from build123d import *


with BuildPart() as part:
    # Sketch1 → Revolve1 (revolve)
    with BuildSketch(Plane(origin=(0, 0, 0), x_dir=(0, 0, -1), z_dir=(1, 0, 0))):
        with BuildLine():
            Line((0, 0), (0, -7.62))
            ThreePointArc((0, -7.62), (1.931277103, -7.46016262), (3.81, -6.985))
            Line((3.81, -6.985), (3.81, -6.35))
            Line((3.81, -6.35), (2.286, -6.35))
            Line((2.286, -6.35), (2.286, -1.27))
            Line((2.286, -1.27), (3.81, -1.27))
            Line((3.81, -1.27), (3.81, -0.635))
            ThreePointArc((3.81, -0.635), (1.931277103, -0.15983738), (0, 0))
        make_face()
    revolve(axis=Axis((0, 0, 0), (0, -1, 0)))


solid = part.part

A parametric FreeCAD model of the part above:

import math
import FreeCAD as App
import Part
import Sketcher
from FreeCAD import Vector
Q = App.Units.Quantity

doc = App.newDocument("Part")
body = doc.addObject("PartDesign::Body", "Body")

# Sketch on YZ plane
sketch1 = body.newObject("Sketcher::SketchObject", "Sketch")
sketch1.AttachmentSupport = (doc.getObject("YZ_Plane"), [""])
sketch1.MapMode = "FlatFace"
sketch1.addGeometry(Part.LineSegment(Vector(0, 0, 0), Vector(-7.6, 0, 0)), False)
sketch1.addGeometry(Part.ArcOfCircle(Part.Circle(Vector(4.1, 0, 0), Vector(0, 0, 1), 11.7), math.radians(-180), math.radians(-161.08)), False)
sketch1.addGeometry(Part.LineSegment(Vector(-7, -3.8, 0), Vector(-6.3, -3.8, 0)), False)
sketch1.addGeometry(Part.LineSegment(Vector(-6.3, -3.8, 0), Vector(-6.3, -2.3, 0)), False)
sketch1.addGeometry(Part.LineSegment(Vector(-6.3, -2.3, 0), Vector(-1.3, -2.3, 0)), False)
sketch1.addGeometry(Part.LineSegment(Vector(-1.3, -2.3, 0), Vector(-1.3, -3.8, 0)), False)
sketch1.addGeometry(Part.LineSegment(Vector(-1.3, -3.8, 0), Vector(-0.6, -3.8, 0)), False)
sketch1.addGeometry(Part.ArcOfCircle(Part.Circle(Vector(-11.7, 0, 0), Vector(0, 0, 1), 11.7), math.radians(-18.92), math.radians(0)), False)
sketch1.addConstraint(Sketcher.Constraint("Coincident", 0, 2, 1, 1))
sketch1.addConstraint(Sketcher.Constraint("Coincident", 1, 2, 2, 1))
sketch1.addConstraint(Sketcher.Constraint("Coincident", 2, 2, 3, 1))
sketch1.addConstraint(Sketcher.Constraint("Coincident", 3, 2, 4, 1))
sketch1.addConstraint(Sketcher.Constraint("Coincident", 4, 2, 5, 1))
sketch1.addConstraint(Sketcher.Constraint("Coincident", 5, 2, 6, 1))
sketch1.addConstraint(Sketcher.Constraint("Coincident", 6, 2, 7, 1))
sketch1.addConstraint(Sketcher.Constraint("Coincident", 7, 2, 0, 1))
sketch1.addConstraint(Sketcher.Constraint("Horizontal", 0))
sketch1.addConstraint(Sketcher.Constraint("Horizontal", 2))
sketch1.addConstraint(Sketcher.Constraint("Vertical", 3))
sketch1.addConstraint(Sketcher.Constraint("Horizontal", 4))
sketch1.addConstraint(Sketcher.Constraint("Vertical", 5))
sketch1.addConstraint(Sketcher.Constraint("Horizontal", 6))
sketch1.addConstraint(Sketcher.Constraint("Coincident", 7, 2, -1, 1))
sketch1.addConstraint(Sketcher.Constraint("Equal", 1, 7))
sketch1.addConstraint(Sketcher.Constraint("PointOnObject", 1, 3, -1))
sketch1.addConstraint(Sketcher.Constraint("PointOnObject", 7, 3, -1))
sketch1.addConstraint(Sketcher.Constraint("Horizontal", 2, 2, 5, 2))
sketch1.addConstraint(Sketcher.Constraint("Equal", 2, 6))
sketch1.addConstraint(Sketcher.Constraint("DistanceX", 0, 2, 0, 1, Q("0.3 in")))
sketch1.addConstraint(Sketcher.Constraint("DistanceX", 4, 1, 4, 2, Q("0.2 in")))
sketch1.addConstraint(Sketcher.Constraint("DistanceY", 3, 1, 3, 2, Q("0.06 in")))
sketch1.addConstraint(Sketcher.Constraint("Radius", 1, Q("0.4625 in")))
sketch1.addConstraint(Sketcher.Constraint("DistanceX", 2, 1, 2, 2, Q("0.025 in")))
revolution = body.newObject("PartDesign::Revolution", "Revolution")
revolution.Profile = sketch1
revolution.ReferenceAxis = (sketch1, ["H_Axis"])
revolution.Angle = 360

doc.recompute()
